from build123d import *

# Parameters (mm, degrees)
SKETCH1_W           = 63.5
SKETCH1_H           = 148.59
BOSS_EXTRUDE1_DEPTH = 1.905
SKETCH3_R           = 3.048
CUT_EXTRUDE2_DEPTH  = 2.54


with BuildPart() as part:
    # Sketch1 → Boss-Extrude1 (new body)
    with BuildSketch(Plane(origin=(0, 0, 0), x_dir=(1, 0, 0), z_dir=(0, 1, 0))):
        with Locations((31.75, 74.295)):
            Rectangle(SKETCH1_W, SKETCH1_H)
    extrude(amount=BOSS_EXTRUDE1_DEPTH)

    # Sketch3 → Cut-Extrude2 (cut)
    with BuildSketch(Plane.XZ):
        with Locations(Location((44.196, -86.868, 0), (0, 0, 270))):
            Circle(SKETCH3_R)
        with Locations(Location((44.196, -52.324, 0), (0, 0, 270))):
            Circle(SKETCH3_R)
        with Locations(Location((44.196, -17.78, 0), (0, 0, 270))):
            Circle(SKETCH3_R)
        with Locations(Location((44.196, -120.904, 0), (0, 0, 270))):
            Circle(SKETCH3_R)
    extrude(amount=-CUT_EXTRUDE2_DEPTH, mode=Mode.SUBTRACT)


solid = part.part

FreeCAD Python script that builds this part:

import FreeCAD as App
import Part
import Sketcher
from FreeCAD import Vector
Q = App.Units.Quantity


def add_polygon(sketch, points):
    """Adds a closed chain of lines whose ends are joined by coincident constraints."""
    first, n = sketch.GeometryCount, len(points)
    for a, b in zip(points, points[1:] + points[:1]):
        sketch.addGeometry(Part.LineSegment(App.Vector(*a, 0), App.Vector(*b, 0)), False)
    for i in range(n):
        sketch.addConstraint(Sketcher.Constraint("Coincident", first + i, 2, first + (i + 1) % n, 1))

doc = App.newDocument("Part")
body = doc.addObject("PartDesign::Body", "Body")

sketch1 = doc.addObject("Sketcher::SketchObject", "Sketch")
body.addObject(sketch1)
sketch1.AttachmentSupport = (doc.XZ_Plane, [""])
sketch1.MapMode = "FlatFace"
add_polygon(sketch1, [(0, -149), (0, 0), (64, 0), (64, -149)])
sketch1.addConstraint([
    Sketcher.Constraint("Vertical", 0),
    Sketcher.Constraint("Horizontal", 1),
    Sketcher.Constraint("Vertical", 2),
    Sketcher.Constraint("Horizontal", 3),
    Sketcher.Constraint("Coincident", 0, 2, -1, 1),
    Sketcher.Constraint("DistanceX", 1, 1, 1, 2, Q("2.5 in")),
    Sketcher.Constraint("DistanceY", 0, 1, 0, 2, Q("5.85 in")),
])
pad1 = doc.addObject("PartDesign::Pad", "Pad")
body.addObject(pad1)
pad1.Profile = sketch1
pad1.Length = Q("0.075 in")
pad1.Reversed = True

sketch2 = doc.addObject("Sketcher::SketchObject", "Sketch001")
body.addObject(sketch2)
sketch2.AttachmentSupport = (doc.XZ_Plane, [""])
sketch2.MapMode = "FlatFace"
sketch2.addGeometry([
    Part.Circle(Vector(44.2, -86.9, 0), Vector(0, 0, 1), 3),
    Part.Circle(Vector(44.2, -52.3, 0), Vector(0, 0, 1), 3),
    Part.Circle(Vector(44.2, -17.8, 0), Vector(0, 0, 1), 3),
    Part.Circle(Vector(44.2, -120.9, 0), Vector(0, 0, 1), 3),
], False)
sketch2.addConstraint([
    Sketcher.Constraint("Equal", 0, 1),
    Sketcher.Constraint("Equal", 1, 2),
    Sketcher.Constraint("Equal", 2, 3),
    Sketcher.Constraint("Vertical", 0, 3, 1, 3),
    Sketcher.Constraint("Vertical", 1, 3, 2, 3),
    Sketcher.Constraint("Vertical", 2, 3, 3, 3),
    Sketcher.Constraint("Diameter", 0, Q("0.24 in")),
    Sketcher.Constraint("DistanceY", 2, 3, -1, 1, Q("0.7 in")),
    Sketcher.Constraint("DistanceY", 3, 3, 1, 3, Q("2.7 in")),
    Sketcher.Constraint("DistanceX", -1, 1, 0, 3, Q("1.74 in")),
    Sketcher.Constraint("DistanceY", 0, 3, -1, 1, Q("3.42 in")),
    Sketcher.Constraint("DistanceY", 1, 3, -1, 1, Q("2.06 in")),
])
pocket1 = doc.addObject("PartDesign::Pocket", "Pocket")
body.addObject(pocket1)
pocket1.Profile = sketch2
pocket1.Length = Q("0.1 in")

doc.recompute()
